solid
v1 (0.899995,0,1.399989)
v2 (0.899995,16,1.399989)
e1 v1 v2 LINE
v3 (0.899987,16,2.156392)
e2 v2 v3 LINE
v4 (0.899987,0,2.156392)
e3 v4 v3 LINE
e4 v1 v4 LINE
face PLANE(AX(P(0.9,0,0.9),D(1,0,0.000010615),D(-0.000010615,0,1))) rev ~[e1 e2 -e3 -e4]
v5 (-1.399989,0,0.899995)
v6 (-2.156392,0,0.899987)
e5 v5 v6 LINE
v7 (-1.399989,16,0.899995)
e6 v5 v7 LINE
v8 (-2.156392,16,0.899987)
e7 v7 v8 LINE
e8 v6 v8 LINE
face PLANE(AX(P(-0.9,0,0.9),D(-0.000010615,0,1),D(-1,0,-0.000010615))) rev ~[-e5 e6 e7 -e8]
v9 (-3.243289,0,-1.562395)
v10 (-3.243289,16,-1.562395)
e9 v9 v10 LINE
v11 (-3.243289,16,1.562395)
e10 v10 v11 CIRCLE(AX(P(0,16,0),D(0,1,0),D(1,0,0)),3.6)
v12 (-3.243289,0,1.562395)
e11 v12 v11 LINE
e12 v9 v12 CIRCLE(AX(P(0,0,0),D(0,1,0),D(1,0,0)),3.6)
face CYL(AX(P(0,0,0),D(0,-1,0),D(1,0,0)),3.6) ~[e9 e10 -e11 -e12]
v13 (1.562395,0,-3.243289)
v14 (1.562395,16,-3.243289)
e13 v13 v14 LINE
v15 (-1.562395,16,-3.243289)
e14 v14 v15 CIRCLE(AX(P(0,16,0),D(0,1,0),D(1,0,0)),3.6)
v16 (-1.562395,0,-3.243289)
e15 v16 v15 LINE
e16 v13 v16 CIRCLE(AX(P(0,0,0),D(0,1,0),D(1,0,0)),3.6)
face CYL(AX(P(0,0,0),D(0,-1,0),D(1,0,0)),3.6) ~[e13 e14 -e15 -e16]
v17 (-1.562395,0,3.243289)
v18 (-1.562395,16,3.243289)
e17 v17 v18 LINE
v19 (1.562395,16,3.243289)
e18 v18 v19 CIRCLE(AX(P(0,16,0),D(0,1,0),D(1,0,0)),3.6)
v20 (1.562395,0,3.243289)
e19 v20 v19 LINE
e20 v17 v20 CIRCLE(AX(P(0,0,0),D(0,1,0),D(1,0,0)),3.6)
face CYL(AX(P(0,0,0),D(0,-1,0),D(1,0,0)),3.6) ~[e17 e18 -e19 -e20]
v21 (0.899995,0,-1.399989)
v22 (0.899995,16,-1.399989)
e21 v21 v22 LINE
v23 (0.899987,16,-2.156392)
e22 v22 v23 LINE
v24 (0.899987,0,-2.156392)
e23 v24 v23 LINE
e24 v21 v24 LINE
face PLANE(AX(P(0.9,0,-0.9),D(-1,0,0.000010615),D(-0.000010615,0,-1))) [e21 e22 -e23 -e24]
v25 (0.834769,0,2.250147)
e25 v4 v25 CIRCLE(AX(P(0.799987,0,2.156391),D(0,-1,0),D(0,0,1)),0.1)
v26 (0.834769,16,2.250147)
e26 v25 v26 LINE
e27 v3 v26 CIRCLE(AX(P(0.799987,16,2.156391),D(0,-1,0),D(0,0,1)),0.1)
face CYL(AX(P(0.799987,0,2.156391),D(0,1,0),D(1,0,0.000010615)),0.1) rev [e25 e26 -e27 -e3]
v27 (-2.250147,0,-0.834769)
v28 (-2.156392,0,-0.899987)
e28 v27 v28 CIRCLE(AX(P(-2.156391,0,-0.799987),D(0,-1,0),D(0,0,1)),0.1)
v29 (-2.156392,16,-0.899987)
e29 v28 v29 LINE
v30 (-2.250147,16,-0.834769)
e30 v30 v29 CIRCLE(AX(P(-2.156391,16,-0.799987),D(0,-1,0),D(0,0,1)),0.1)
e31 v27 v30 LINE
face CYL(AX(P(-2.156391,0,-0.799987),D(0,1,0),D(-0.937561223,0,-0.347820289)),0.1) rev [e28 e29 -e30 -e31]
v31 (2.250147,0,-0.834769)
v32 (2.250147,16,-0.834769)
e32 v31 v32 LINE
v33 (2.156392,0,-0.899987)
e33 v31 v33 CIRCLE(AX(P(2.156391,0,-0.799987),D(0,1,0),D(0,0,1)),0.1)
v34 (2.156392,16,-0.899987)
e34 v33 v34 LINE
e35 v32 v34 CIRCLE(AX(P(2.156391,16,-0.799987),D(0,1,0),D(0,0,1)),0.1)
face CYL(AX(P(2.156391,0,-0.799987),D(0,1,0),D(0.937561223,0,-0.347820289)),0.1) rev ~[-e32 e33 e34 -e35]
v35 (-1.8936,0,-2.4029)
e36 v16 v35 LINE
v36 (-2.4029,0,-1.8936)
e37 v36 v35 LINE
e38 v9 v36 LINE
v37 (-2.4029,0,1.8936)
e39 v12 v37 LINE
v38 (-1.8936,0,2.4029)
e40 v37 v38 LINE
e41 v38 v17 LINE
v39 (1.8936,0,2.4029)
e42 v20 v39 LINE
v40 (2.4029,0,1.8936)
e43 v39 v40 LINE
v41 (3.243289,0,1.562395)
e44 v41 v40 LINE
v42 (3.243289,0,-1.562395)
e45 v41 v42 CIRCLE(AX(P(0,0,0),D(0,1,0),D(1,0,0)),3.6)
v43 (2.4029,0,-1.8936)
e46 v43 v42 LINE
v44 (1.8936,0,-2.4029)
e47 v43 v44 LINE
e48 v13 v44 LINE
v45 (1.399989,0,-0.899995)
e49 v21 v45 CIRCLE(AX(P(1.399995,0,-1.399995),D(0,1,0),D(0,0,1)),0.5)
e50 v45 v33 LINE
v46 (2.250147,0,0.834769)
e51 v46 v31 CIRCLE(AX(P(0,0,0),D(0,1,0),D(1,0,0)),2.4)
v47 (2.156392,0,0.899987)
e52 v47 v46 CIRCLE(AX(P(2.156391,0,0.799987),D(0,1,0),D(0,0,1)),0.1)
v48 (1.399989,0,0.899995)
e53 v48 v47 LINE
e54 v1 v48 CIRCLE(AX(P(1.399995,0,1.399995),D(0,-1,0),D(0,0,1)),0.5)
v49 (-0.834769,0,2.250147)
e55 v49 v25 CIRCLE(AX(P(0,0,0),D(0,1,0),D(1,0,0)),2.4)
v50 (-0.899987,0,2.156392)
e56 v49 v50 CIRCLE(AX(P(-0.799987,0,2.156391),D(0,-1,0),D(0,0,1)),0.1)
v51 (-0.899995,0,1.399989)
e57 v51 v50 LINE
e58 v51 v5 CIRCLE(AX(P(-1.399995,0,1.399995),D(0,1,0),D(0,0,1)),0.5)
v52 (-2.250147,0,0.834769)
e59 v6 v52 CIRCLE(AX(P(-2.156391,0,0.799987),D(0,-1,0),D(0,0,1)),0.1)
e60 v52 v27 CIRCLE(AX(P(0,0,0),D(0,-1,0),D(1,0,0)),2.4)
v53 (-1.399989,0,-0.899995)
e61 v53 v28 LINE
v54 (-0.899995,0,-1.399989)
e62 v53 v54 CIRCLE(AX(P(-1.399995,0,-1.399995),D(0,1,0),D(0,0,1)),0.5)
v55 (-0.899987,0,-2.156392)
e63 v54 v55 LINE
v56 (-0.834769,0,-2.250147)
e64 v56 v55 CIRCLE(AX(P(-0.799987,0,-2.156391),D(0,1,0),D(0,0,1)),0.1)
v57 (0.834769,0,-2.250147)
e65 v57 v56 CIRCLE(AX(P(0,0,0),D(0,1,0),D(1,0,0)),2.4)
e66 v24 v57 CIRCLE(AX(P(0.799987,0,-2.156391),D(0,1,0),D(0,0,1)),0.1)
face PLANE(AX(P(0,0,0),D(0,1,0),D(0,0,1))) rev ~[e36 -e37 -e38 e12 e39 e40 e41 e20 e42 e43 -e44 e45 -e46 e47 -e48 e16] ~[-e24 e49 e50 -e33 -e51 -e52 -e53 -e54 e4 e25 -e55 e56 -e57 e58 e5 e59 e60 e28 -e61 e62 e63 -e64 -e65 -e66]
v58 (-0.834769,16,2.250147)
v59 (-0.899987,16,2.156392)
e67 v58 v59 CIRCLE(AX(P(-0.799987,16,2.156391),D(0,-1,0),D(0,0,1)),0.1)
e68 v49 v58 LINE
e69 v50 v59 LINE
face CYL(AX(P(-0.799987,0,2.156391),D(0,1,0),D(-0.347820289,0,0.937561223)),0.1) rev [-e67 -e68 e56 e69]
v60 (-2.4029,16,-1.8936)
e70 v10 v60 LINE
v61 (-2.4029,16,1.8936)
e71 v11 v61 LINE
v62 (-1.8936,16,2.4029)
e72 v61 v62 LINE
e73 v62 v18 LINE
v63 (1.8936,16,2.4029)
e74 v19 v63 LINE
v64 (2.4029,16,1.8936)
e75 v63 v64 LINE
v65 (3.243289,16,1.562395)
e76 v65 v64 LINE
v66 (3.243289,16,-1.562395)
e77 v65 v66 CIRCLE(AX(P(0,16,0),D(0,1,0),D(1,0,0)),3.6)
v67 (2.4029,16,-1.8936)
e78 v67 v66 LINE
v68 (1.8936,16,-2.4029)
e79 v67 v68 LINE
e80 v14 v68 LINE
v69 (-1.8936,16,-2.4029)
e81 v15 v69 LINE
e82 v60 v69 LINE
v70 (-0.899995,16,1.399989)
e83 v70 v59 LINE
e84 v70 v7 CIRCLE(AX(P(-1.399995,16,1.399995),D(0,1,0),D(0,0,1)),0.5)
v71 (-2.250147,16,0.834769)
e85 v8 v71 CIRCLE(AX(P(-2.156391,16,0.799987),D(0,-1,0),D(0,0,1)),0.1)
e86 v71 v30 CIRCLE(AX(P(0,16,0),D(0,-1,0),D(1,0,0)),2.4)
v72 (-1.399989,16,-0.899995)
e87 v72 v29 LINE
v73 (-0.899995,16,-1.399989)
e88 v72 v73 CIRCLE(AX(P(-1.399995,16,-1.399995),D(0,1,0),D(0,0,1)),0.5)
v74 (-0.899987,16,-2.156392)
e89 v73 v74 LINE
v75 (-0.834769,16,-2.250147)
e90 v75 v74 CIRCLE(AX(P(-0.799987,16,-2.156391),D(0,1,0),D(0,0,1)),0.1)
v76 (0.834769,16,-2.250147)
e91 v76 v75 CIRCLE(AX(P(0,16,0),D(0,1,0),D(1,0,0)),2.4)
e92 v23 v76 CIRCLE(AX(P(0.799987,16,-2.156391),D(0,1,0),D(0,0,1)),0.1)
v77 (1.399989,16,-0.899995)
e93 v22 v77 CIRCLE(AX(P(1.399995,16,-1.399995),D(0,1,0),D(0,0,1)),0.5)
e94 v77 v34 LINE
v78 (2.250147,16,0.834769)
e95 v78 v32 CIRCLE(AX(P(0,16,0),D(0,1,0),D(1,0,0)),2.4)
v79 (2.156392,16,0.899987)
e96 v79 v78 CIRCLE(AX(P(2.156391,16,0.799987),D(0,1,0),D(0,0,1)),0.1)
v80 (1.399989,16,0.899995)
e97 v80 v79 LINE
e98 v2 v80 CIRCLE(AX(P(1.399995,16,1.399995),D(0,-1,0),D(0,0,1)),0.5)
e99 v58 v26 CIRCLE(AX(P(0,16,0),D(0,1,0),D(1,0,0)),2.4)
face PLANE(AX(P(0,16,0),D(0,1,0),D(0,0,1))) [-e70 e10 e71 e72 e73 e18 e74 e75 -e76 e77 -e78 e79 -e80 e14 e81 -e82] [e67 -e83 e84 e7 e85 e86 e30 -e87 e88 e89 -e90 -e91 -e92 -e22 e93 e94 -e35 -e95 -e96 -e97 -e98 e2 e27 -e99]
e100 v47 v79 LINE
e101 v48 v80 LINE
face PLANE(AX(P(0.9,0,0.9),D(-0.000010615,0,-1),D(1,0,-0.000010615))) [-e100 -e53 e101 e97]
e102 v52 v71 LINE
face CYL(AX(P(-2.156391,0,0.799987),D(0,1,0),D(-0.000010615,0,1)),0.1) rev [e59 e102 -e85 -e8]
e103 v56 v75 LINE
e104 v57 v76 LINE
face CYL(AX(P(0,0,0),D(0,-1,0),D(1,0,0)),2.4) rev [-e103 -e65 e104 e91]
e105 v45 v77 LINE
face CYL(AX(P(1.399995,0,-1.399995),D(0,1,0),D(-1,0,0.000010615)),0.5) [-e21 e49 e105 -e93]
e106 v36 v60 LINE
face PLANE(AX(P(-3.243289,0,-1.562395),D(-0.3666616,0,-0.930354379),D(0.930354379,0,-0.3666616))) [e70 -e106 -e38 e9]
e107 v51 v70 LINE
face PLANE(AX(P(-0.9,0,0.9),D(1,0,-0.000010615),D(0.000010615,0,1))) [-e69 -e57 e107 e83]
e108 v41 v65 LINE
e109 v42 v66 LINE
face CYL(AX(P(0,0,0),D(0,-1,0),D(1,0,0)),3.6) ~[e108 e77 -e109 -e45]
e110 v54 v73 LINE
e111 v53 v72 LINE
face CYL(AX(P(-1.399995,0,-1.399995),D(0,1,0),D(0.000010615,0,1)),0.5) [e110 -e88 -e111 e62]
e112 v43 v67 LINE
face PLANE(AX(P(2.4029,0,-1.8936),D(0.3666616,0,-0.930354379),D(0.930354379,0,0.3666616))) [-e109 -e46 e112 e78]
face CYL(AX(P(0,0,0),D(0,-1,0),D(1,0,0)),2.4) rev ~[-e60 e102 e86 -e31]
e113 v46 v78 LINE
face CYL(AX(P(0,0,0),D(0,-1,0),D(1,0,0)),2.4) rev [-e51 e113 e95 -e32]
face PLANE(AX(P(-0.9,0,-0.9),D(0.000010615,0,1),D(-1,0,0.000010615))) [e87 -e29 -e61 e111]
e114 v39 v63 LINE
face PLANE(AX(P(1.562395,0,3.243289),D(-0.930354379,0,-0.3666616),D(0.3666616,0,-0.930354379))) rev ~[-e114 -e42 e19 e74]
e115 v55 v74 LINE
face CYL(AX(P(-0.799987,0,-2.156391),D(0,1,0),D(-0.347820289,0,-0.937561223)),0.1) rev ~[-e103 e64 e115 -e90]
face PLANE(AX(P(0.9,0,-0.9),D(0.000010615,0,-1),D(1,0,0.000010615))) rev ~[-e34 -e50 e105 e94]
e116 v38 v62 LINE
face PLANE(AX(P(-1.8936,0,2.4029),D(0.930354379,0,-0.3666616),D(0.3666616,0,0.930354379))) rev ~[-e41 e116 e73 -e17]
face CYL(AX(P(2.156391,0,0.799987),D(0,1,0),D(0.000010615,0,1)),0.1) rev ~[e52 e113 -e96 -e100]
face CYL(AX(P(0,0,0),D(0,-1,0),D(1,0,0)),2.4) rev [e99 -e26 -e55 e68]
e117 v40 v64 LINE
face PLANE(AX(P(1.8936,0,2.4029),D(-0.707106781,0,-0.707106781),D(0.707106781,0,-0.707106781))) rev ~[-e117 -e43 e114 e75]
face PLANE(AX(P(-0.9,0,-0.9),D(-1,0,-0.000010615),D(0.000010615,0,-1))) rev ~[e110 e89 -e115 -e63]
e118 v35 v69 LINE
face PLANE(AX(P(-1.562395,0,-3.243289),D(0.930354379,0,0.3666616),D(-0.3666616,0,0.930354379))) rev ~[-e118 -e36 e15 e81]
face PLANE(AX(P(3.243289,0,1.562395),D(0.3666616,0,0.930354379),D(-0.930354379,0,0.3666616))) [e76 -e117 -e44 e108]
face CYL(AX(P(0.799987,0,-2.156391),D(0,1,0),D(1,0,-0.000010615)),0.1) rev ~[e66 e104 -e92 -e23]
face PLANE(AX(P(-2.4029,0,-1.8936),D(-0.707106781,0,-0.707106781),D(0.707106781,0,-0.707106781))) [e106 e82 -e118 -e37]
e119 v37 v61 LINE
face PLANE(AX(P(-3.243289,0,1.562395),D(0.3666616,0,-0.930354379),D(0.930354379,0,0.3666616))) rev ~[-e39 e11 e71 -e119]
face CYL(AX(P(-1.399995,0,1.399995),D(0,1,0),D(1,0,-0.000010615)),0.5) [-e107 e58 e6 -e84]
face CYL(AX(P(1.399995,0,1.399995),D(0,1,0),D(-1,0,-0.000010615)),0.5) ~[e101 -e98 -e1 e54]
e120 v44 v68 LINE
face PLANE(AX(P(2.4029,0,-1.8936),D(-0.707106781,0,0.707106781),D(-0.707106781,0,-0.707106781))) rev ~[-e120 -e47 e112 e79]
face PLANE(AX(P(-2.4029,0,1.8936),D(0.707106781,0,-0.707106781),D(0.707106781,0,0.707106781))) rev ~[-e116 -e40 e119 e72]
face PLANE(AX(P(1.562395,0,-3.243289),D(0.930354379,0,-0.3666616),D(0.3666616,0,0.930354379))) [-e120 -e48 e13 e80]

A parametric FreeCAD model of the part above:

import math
import FreeCAD as App
import Part
import Sketcher
from FreeCAD import Vector
Q = App.Units.Quantity


def edges_at(feature, points):
    """Names of the edges that pass closest to the given points."""
    edges = feature.Shape.Edges
    near = lambda p: min(range(len(edges)), key=lambda i: edges[i].distToShape(Part.Vertex(*p))[0])
    return sorted({f"Edge{near(p) + 1}" for p in points})

doc = App.newDocument("Part")
params = doc.addObject("Spreadsheet::Sheet", "Params")
for row, (alias, value) in enumerate([
    ("sketch1_radius", "3.6 mm"),
    ("sketch1_radius2", "2.4 mm"),
    ("pad1_length", "16 mm"),
    ("fillet_radius", "0.5 mm"),
    ("fillet2_radius", "0.1 mm"),
], start=1):
    params.set(f"A{row}", alias)
    params.set(f"B{row}", "=" + value)
    params.setAlias(f"B{row}", alias)

body = doc.addObject("PartDesign::Body", "Body")

sketch1 = doc.addObject("Sketcher::SketchObject", "Sketch")
body.addObject(sketch1)
sketch1.AttachmentSupport = (doc.XZ_Plane, [""])
sketch1.MapMode = "FlatFace"
sketch1.addGeometry([
    Part.LineSegment(Vector(1.8936, 2.4029, 0), Vector(1.5624, 3.2433, 0)),
    Part.ArcOfCircle(Part.Circle(Vector(0, 0, 0), Vector(0, 0, 1), 3.600012), math.radians(64.278415), math.radians(115.721585)),
    Part.LineSegment(Vector(-1.5624, 3.2433, 0), Vector(-1.8936, 2.4029, 0)),
    Part.LineSegment(Vector(-1.8936, 2.4029, 0), Vector(-2.4029, 1.8936, 0)),
    Part.LineSegment(Vector(-2.4029, 1.8936, 0), Vector(-3.2433, 1.5624, 0)),
    Part.ArcOfCircle(Part.Circle(Vector(0, 0, 0), Vector(0, 0, 1), 3.600012), math.radians(154.278415), math.radians(205.721585)),
    Part.LineSegment(Vector(-3.2433, -1.5624, 0), Vector(-2.4029, -1.8936, 0)),
    Part.LineSegment(Vector(-2.4029, -1.8936, 0), Vector(-1.8936, -2.4029, 0)),
    Part.LineSegment(Vector(-1.8936, -2.4029, 0), Vector(-1.5624, -3.2433, 0)),
    Part.ArcOfCircle(Part.Circle(Vector(0, 0, 0), Vector(0, 0, 1), 3.600012), math.radians(-115.721585), math.radians(-64.278415)),
    Part.LineSegment(Vector(1.5624, -3.2433, 0), Vector(1.8936, -2.4029, 0)),
    Part.LineSegment(Vector(1.8936, -2.4029, 0), Vector(2.4029, -1.8936, 0)),
    Part.LineSegment(Vector(2.4029, -1.8936, 0), Vector(3.2433, -1.5624, 0)),
    Part.ArcOfCircle(Part.Circle(Vector(0, 0, 0), Vector(0, 0, 1), 3.600012), math.radians(-25.721585), math.radians(25.721585)),
    Part.LineSegment(Vector(3.2433, 1.5624, 0), Vector(2.4029, 1.8936, 0)),
    Part.LineSegment(Vector(2.4029, 1.8936, 0), Vector(1.8936, 2.4029, 0)),
    Part.LineSegment(Vector(0.9, 2.2249, 0), Vector(0.9, 0.9, 0)),
    Part.LineSegment(Vector(0.9, 0.9, 0), Vector(2.2249, 0.9, 0)),
    Part.ArcOfCircle(Part.Circle(Vector(0, 0, 0), Vector(0, 0, 1), 2.400038), math.radians(-22.023951), math.radians(22.023951)),
    Part.LineSegment(Vector(2.2249, -0.9, 0), Vector(0.9, -0.9, 0)),
    Part.LineSegment(Vector(0.9, -0.9, 0), Vector(0.9, -2.2249, 0)),
    Part.ArcOfCircle(Part.Circle(Vector(0, 0, 0), Vector(0, 0, 1), 2.400038), math.radians(-112.023951), math.radians(-67.976049)),
    Part.LineSegment(Vector(-0.9, -2.2249, 0), Vector(-0.9, -0.9, 0)),
    Part.LineSegment(Vector(-0.9, -0.9, 0), Vector(-2.2249, -0.9, 0)),
    Part.ArcOfCircle(Part.Circle(Vector(0, 0, 0), Vector(0, 0, 1), 2.400038), math.radians(157.976049), math.radians(202.023951)),
    Part.LineSegment(Vector(-2.2249, 0.9, 0), Vector(-0.9, 0.9, 0)),
    Part.LineSegment(Vector(-0.9, 0.9, 0), Vector(-0.9, 2.2249, 0)),
    Part.ArcOfCircle(Part.Circle(Vector(0, 0, 0), Vector(0, 0, 1), 2.400038), math.radians(67.976049), math.radians(112.023951)),
], False)
sketch1.addConstraint([
    Sketcher.Constraint("Coincident", 0, 2, 1, 1),
    Sketcher.Constraint("Coincident", 1, 2, 2, 1),
    Sketcher.Constraint("Coincident", 2, 2, 3, 1),
    Sketcher.Constraint("Coincident", 3, 2, 4, 1),
    Sketcher.Constraint("Coincident", 4, 2, 5, 1),
    Sketcher.Constraint("Coincident", 5, 2, 6, 1),
    Sketcher.Constraint("Coincident", 6, 2, 7, 1),
    Sketcher.Constraint("Coincident", 7, 2, 8, 1),
    Sketcher.Constraint("Coincident", 8, 2, 9, 1),
    Sketcher.Constraint("Coincident", 9, 2, 10, 1),
    Sketcher.Constraint("Coincident", 10, 2, 11, 1),
    Sketcher.Constraint("Coincident", 11, 2, 12, 1),
    Sketcher.Constraint("Coincident", 12, 2, 13, 1),
    Sketcher.Constraint("Coincident", 13, 2, 14, 1),
    Sketcher.Constraint("Coincident", 14, 2, 15, 1),
    Sketcher.Constraint("Coincident", 15, 2, 0, 1),
    Sketcher.Constraint("Coincident", 16, 2, 17, 1),
    Sketcher.Constraint("Coincident", 17, 2, 18, 2),
    Sketcher.Constraint("Coincident", 18, 1, 19, 1),
    Sketcher.Constraint("Coincident", 19, 2, 20, 1),
    Sketcher.Constraint("Coincident", 20, 2, 21, 2),
    Sketcher.Constraint("Coincident", 21, 1, 22, 1),
    Sketcher.Constraint("Coincident", 22, 2, 23, 1),
    Sketcher.Constraint("Coincident", 23, 2, 24, 2),
    Sketcher.Constraint("Coincident", 24, 1, 25, 1),
    Sketcher.Constraint("Coincident", 25, 2, 26, 1),
    Sketcher.Constraint("Coincident", 26, 2, 27, 2),
    Sketcher.Constraint("Coincident", 27, 1, 16, 1),
    Sketcher.Constraint("Vertical", 16),
    Sketcher.Constraint("Horizontal", 17),
    Sketcher.Constraint("Horizontal", 19),
    Sketcher.Constraint("Vertical", 20),
    Sketcher.Constraint("Vertical", 22),
    Sketcher.Constraint("Horizontal", 23),
    Sketcher.Constraint("Horizontal", 25),
    Sketcher.Constraint("Vertical", 26),
    Sketcher.Constraint("Coincident", 1, 3, -1, 1),
    Sketcher.Constraint("Coincident", 5, 3, -1, 1),
    Sketcher.Constraint("Coincident", 9, 3, -1, 1),
    Sketcher.Constraint("Coincident", 13, 3, -1, 1),
    Sketcher.Constraint("Coincident", 18, 3, -1, 1),
    Sketcher.Constraint("Coincident", 21, 3, -1, 1),
    Sketcher.Constraint("Coincident", 24, 3, -1, 1),
    Sketcher.Constraint("Coincident", 27, 3, -1, 1),
    Sketcher.Constraint("Equal", 1, 5),
    Sketcher.Constraint("Equal", 5, 9),
    Sketcher.Constraint("Equal", 9, 13),
    Sketcher.Constraint("Equal", 18, 21),
    Sketcher.Constraint("Equal", 21, 24),
    Sketcher.Constraint("Equal", 24, 27),
    Sketcher.Constraint("Symmetric", 2, 2, 10, 2, -1, 1),
    Sketcher.Constraint("Symmetric", 3, 2, 11, 2, -1, 1),
    Sketcher.Constraint("Symmetric", 6, 2, 14, 2, -1, 1),
    Sketcher.Constraint("Symmetric", 7, 2, 15, 2, -1, 1),
    Sketcher.Constraint("Symmetric", 16, 2, 22, 2, -1, 1),
    Sketcher.Constraint("Symmetric", 19, 2, 25, 2, -1, 1),
    Sketcher.Constraint("Symmetric", 7, 2, 10, 2, -2),
    Sketcher.Constraint("Symmetric", 6, 2, 11, 2, -2),
    Sketcher.Constraint("Symmetric", 19, 2, 22, 2, -2),
    Sketcher.Constraint("Perpendicular", 0, 4),
    Sketcher.Constraint("Perpendicular", 2, 6),
    Sketcher.Constraint("Perpendicular", 3, 7),
    Sketcher.Constraint("Perpendicular", 4, 8),
    Sketcher.Constraint("Perpendicular", 6, 10),
    Sketcher.Constraint("Perpendicular", 8, 12),
    Sketcher.Constraint("Perpendicular", 10, 14),
    Sketcher.Constraint("Horizontal", 0, 2, 1, 2),
    Sketcher.Constraint("Equal", 25, 16),
    Sketcher.Constraint("Equal", 2, 4),
    Sketcher.Constraint("Radius", 1, 3.6),
    Sketcher.Constraint("Radius", 18, 2.4),
    Sketcher.Constraint("DistanceX", -1, 1, 16, 2, 0.9),
    Sketcher.Constraint("Angle", 0, Q("111.5093 deg")),
    Sketcher.Constraint("DistanceY", -1, 1, 2, 2, 2.403),
    Sketcher.Constraint("DistanceX", 4, 2, 1, 2, 1.681),
])
sketch1.setExpression("Constraints[69]", "Params.sketch1_radius")
sketch1.setExpression("Constraints[70]", "Params.sketch1_radius2")
pad1 = doc.addObject("PartDesign::Pad", "Pad")
body.addObject(pad1)
pad1.Profile = sketch1
pad1.setExpression("Length", "Params.pad1_length")
pad1.Reversed = True
doc.recompute()

fillet = doc.addObject("PartDesign::Fillet", "Fillet")
body.addObject(fillet)
fillet.Base = (pad1, edges_at(pad1, [
    (-0.9, 8, 0.9),
    (0.9, 8, 0.9),
    (-0.9, 8, -0.9),
    (0.9, 8, -0.9),
]))
fillet.setExpression("Radius", "Params.fillet_radius")
doc.recompute()

fillet2 = doc.addObject("PartDesign::Fillet", "Fillet001")
body.addObject(fillet2)
fillet2.Base = (fillet, edges_at(fillet, [
    (-0.9, 8, 2.225),
    (0.9, 8, 2.225),
    (2.225, 8, 0.9),
    (2.225, 8, -0.9),
    (0.9, 8, -2.225),
    (-0.9, 8, -2.225),
    (-2.225, 8, -0.9),
    (-2.225, 8, 0.9),
]))
fillet2.setExpression("Radius", "Params.fillet2_radius")

doc.recompute()
